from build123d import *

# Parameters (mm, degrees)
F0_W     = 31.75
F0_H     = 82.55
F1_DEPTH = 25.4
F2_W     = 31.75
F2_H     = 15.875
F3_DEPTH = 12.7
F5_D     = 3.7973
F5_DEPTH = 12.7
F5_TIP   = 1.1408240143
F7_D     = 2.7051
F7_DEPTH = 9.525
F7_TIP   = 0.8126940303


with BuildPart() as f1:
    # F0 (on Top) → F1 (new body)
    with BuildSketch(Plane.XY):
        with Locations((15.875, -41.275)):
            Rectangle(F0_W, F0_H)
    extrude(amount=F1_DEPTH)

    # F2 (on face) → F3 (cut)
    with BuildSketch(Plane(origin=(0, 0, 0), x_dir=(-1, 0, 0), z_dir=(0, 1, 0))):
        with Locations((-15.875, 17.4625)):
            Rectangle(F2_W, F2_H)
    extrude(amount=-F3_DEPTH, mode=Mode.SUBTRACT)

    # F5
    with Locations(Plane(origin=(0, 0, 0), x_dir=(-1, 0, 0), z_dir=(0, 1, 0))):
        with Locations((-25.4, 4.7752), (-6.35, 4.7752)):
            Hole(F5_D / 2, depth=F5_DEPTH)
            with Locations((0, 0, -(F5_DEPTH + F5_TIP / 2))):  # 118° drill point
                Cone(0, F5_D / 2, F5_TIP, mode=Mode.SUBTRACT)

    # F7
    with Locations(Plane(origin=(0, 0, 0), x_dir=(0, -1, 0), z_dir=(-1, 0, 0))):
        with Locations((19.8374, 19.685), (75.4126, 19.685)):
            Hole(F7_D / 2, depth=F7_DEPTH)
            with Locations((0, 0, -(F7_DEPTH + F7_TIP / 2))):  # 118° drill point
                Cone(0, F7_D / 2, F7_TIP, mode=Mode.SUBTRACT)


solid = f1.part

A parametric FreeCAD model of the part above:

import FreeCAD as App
import Part
import Sketcher
from FreeCAD import Vector
Q = App.Units.Quantity

doc = App.newDocument("Part")
body = doc.addObject("PartDesign::Body", "Body")

sketch1 = doc.addObject("Sketcher::SketchObject", "Sketch")
body.addObject(sketch1)
sketch1.AttachmentSupport = (doc.XY_Plane, [""])
sketch1.MapMode = "FlatFace"
sketch1.addGeometry([
    Part.LineSegment(Vector(0, 0, 0), Vector(0, -83, 0)),
    Part.LineSegment(Vector(0, -83, 0), Vector(32, -83, 0)),
    Part.LineSegment(Vector(32, -83, 0), Vector(32, 0, 0)),
    Part.LineSegment(Vector(32, 0, 0), Vector(0, 0, 0)),
], False)
sketch1.addConstraint([
    Sketcher.Constraint("Coincident", 0, 2, 1, 1),
    Sketcher.Constraint("Coincident", 1, 2, 2, 1),
    Sketcher.Constraint("Coincident", 2, 2, 3, 1),
    Sketcher.Constraint("Coincident", 3, 2, 0, 1),
    Sketcher.Constraint("Vertical", 0),
    Sketcher.Constraint("Horizontal", 1),
    Sketcher.Constraint("Vertical", 2),
    Sketcher.Constraint("Horizontal", 3),
    Sketcher.Constraint("Coincident", 3, 2, -1, 1),
    Sketcher.Constraint("DistanceX", 1, 1, 1, 2, Q("1.25 in")),
    Sketcher.Constraint("DistanceY", 0, 2, 0, 1, Q("3.25 in")),
])
pad1 = doc.addObject("PartDesign::Pad", "Pad")
body.addObject(pad1)
pad1.Profile = sketch1
pad1.Length = Q("1 in")

sketch2 = doc.addObject("Sketcher::SketchObject", "Sketch001")
body.addObject(sketch2)
sketch2.AttachmentSupport = (doc.XZ_Plane, [""])
sketch2.MapMode = "FlatFace"
sketch2.addGeometry([
    Part.LineSegment(Vector(32, 25, 0), Vector(32, 10, 0)),
    Part.LineSegment(Vector(32, 10, 0), Vector(0, 10, 0)),
    Part.LineSegment(Vector(0, 10, 0), Vector(0, 25, 0)),
    Part.LineSegment(Vector(0, 25, 0), Vector(32, 25, 0)),
], False)
sketch2.addConstraint([
    Sketcher.Constraint("Coincident", 0, 2, 1, 1),
    Sketcher.Constraint("Coincident", 1, 2, 2, 1),
    Sketcher.Constraint("Coincident", 2, 2, 3, 1),
    Sketcher.Constraint("Coincident", 3, 2, 0, 1),
    Sketcher.Constraint("Vertical", 0),
    Sketcher.Constraint("Horizontal", 1),
    Sketcher.Constraint("Vertical", 2),
    Sketcher.Constraint("Horizontal", 3),
    Sketcher.Constraint("PointOnObject", 1, 2, -2),
    Sketcher.Constraint("DistanceY", -1, 1, 2, 2, Q("1 in")),
    Sketcher.Constraint("DistanceX", 1, 2, 1, 1, Q("1.25 in")),
    Sketcher.Constraint("DistanceY", 0, 2, 0, 1, Q("0.625 in")),
])
pocket1 = doc.addObject("PartDesign::Pocket", "Pocket")
body.addObject(pocket1)
pocket1.Profile = sketch2
pocket1.Length = Q("0.5 in")
pocket1.Reversed = True

sketch3 = doc.addObject("Sketcher::SketchObject", "Sketch002")
body.addObject(sketch3)
sketch3.AttachmentSupport = (doc.XZ_Plane, [""])
sketch3.MapMode = "FlatFace"
sketch3.addGeometry([
    Part.Circle(Vector(25.4, 4.8, 0), Vector(0, 0, 1), 1.9),
    Part.Circle(Vector(6.3, 4.8, 0), Vector(0, 0, 1), 1.9),
], False)
sketch3.addConstraint([
    Sketcher.Constraint("Equal", 0, 1),
    Sketcher.Constraint("Horizontal", 0, 3, 1, 3),
    Sketcher.Constraint("DistanceX", -1, 1, 0, 3, Q("1 in")),
    Sketcher.Constraint("Diameter", 0, Q("0.1495 in")),
    Sketcher.Constraint("DistanceX", -1, 1, 1, 3, Q("0.25 in")),
    Sketcher.Constraint("DistanceY", -1, 1, 0, 3, Q("0.188 in")),
])
doc.recompute()
hole = doc.addObject("PartDesign::Hole", "Hole")
body.addObject(hole)
hole.Profile = sketch3
hole.ThreadType = "None"
hole.Diameter = Q("0.1495 in")
hole.DepthType = "Dimension"
hole.Depth = Q("0.5 in")
hole.DrillPoint = "Angled"
hole.DrillPointAngle = 118
hole.Reversed = True

sketch4 = doc.addObject("Sketcher::SketchObject", "Sketch003")
body.addObject(sketch4)
sketch4.AttachmentSupport = (doc.YZ_Plane, [""])
sketch4.MapMode = "FlatFace"
sketch4.addGeometry([
    Part.Circle(Vector(-19.8, 19.7, 0), Vector(0, 0, 1), 1.4),
    Part.Circle(Vector(-75.4, 19.7, 0), Vector(0, 0, 1), 1.4),
], False)
sketch4.addConstraint([
    Sketcher.Constraint("Equal", 0, 1),
    Sketcher.Constraint("Horizontal", 0, 3, 1, 3),
    Sketcher.Constraint("Diameter", 0, Q("0.1065 in")),
    Sketcher.Constraint("DistanceX", 0, 3, -1, 1, Q("0.781 in")),
    Sketcher.Constraint("DistanceY", -1, 1, 0, 3, Q("0.775 in")),
    Sketcher.Constraint("DistanceX", 1, 3, -1, 1, Q("2.969 in")),
])
doc.recompute()
hole2 = doc.addObject("PartDesign::Hole", "Hole001")
body.addObject(hole2)
hole2.Profile = sketch4
hole2.ThreadType = "None"
hole2.Diameter = Q("0.1065 in")
hole2.DepthType = "Dimension"
hole2.Depth = Q("0.375 in")
hole2.DrillPoint = "Angled"
hole2.DrillPointAngle = 118
hole2.Reversed = True

doc.recompute()
